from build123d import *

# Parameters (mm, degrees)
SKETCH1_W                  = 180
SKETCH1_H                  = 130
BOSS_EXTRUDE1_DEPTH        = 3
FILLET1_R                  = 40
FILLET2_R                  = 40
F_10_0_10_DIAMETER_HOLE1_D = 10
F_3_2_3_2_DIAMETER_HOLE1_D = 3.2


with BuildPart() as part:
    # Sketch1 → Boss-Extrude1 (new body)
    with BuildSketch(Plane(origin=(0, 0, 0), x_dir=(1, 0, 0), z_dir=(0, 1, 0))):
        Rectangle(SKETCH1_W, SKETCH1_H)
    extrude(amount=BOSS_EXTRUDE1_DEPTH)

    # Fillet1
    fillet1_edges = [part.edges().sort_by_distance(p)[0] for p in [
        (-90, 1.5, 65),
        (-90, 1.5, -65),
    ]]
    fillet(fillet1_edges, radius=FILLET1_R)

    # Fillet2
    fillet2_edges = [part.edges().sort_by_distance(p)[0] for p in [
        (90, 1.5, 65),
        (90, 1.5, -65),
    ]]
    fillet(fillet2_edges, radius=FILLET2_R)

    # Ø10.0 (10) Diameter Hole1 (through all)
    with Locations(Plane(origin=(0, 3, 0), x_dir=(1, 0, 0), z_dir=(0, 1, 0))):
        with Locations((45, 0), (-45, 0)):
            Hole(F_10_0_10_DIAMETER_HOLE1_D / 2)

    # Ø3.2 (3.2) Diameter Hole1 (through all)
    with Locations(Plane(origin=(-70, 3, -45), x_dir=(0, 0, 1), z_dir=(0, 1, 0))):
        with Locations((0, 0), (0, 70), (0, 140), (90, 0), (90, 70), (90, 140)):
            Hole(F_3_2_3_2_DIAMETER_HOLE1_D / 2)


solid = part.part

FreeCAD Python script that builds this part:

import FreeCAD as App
import Part
import Sketcher
from FreeCAD import Vector


def edges_at(feature, points):
    """Names of the edges that pass closest to the given points."""
    edges = feature.Shape.Edges
    near = lambda p: min(range(len(edges)), key=lambda i: edges[i].distToShape(Part.Vertex(*p))[0])
    return sorted({f"Edge{near(p) + 1}" for p in points})


def add_polygon(sketch, points):
    """Adds a closed chain of lines whose ends are joined by coincident constraints."""
    first, n = sketch.GeometryCount, len(points)
    for a, b in zip(points, points[1:] + points[:1]):
        sketch.addGeometry(Part.LineSegment(App.Vector(*a, 0), App.Vector(*b, 0)), False)
    for i in range(n):
        sketch.addConstraint(Sketcher.Constraint("Coincident", first + i, 2, first + (i + 1) % n, 1))

doc = App.newDocument("Part")
params = doc.addObject("Spreadsheet::Sheet", "Params")
for row, (alias, value) in enumerate([
    ("sketch1_width", "180 mm"),
    ("sketch1_height", "130 mm"),
    ("pad1_length", "3 mm"),
    ("fillet_radius", "40 mm"),
    ("fillet2_radius", "40 mm"),
    ("sketch2_diameter", "10 mm"),
    ("hole_diameter", "10 mm"),
    ("sketch3_diameter", "3.2 mm"),
    ("hole2_diameter", "3.2 mm"),
], start=1):
    params.set(f"A{row}", alias)
    params.set(f"B{row}", "=" + value)
    params.setAlias(f"B{row}", alias)

body = doc.addObject("PartDesign::Body", "Body")

# Sketch on XZ plane
sketch1 = body.newObject("Sketcher::SketchObject", "Sketch")
sketch1.AttachmentSupport = (doc.getObject("XZ_Plane"), [""])
sketch1.MapMode = "FlatFace"
add_polygon(sketch1, [(-90, -65), (-90, 65), (90, 65), (90, -65)])  # lines 0-3
sketch1.addConstraint(Sketcher.Constraint("Vertical", 0))
sketch1.addConstraint(Sketcher.Constraint("Horizontal", 1))
sketch1.addConstraint(Sketcher.Constraint("Vertical", 2))
sketch1.addConstraint(Sketcher.Constraint("Horizontal", 3))
sketch1.addConstraint(Sketcher.Constraint("Symmetric", 0, 2, 2, 2, -1, 1))
sketch1.addConstraint(Sketcher.Constraint("DistanceX", 1, 1, 1, 2, 180.0))
sketch1.addConstraint(Sketcher.Constraint("DistanceY", 0, 1, 0, 2, 130.0))
sketch1.setExpression("Constraints[9]", "Params.sketch1_width")
sketch1.setExpression("Constraints[10]", "Params.sketch1_height")
pad1 = body.newObject("PartDesign::Pad", "Pad")
pad1.Profile = sketch1
pad1.setExpression("Length", "Params.pad1_length")
pad1.Reversed = True
doc.recompute()

fillet = body.newObject("PartDesign::Fillet", "Fillet")
fillet.Base = (pad1, edges_at(pad1, [(-90, 1.5, 65), (-90, 1.5, -65)]))
fillet.setExpression("Radius", "Params.fillet_radius")
doc.recompute()

fillet2 = body.newObject("PartDesign::Fillet", "Fillet001")
fillet2.Base = (fillet, edges_at(fillet, [(90, 1.5, 65), (90, 1.5, -65)]))
fillet2.setExpression("Radius", "Params.fillet2_radius")

# Sketch on XZ plane
sketch2 = body.newObject("Sketcher::SketchObject", "Sketch001")
sketch2.AttachmentSupport = (doc.getObject("XZ_Plane"), [""])
sketch2.MapMode = "FlatFace"
sketch2.AttachmentOffset = App.Placement(Vector(0, 0, -3), App.Rotation())
sketch2.addGeometry(Part.Circle(Vector(45, 0, 0), Vector(0, 0, 1), 5), False)
sketch2.addGeometry(Part.Circle(Vector(-45, 0, 0), Vector(0, 0, 1), 5), False)
sketch2.addConstraint(Sketcher.Constraint("Equal", 0, 1))
sketch2.addConstraint(Sketcher.Constraint("Symmetric", 0, 3, 1, 3, -1, 1))
sketch2.addConstraint(Sketcher.Constraint("PointOnObject", 0, 3, -1))
sketch2.addConstraint(Sketcher.Constraint("Diameter", 0, 10.0))
sketch2.addConstraint(Sketcher.Constraint("DistanceX", -1, 1, 0, 3, 45.0))
sketch2.setExpression("Constraints[3]", "Params.sketch2_diameter")
doc.recompute()
hole = body.newObject("PartDesign::Hole", "Hole")
hole.Profile = sketch2
hole.ThreadType = "None"
hole.setExpression("Diameter", "Params.hole_diameter")
hole.DepthType = "ThroughAll"
hole.Reversed = True

# Sketch on XZ plane
sketch3 = body.newObject("Sketcher::SketchObject", "Sketch002")
sketch3.AttachmentSupport = (doc.getObject("XZ_Plane"), [""])
sketch3.MapMode = "FlatFace"
sketch3.AttachmentOffset = App.Placement(Vector(0, 0, -3), App.Rotation())
sketch3.addGeometry(Part.Circle(Vector(-70, -45, 0), Vector(0, 0, 1), 1.6), False)
sketch3.addGeometry(Part.Circle(Vector(0, -45, 0), Vector(0, 0, 1), 1.6), False)
sketch3.addGeometry(Part.Circle(Vector(70, -45, 0), Vector(0, 0, 1), 1.6), False)
sketch3.addGeometry(Part.Circle(Vector(-70, 45, 0), Vector(0, 0, 1), 1.6), False)
sketch3.addGeometry(Part.Circle(Vector(0, 45, 0), Vector(0, 0, 1), 1.6), False)
sketch3.addGeometry(Part.Circle(Vector(70, 45, 0), Vector(0, 0, 1), 1.6), False)
sketch3.addConstraint(Sketcher.Constraint("Equal", 0, 1))
sketch3.addConstraint(Sketcher.Constraint("Equal", 1, 2))
sketch3.addConstraint(Sketcher.Constraint("Equal", 2, 3))
sketch3.addConstraint(Sketcher.Constraint("Equal", 3, 4))
sketch3.addConstraint(Sketcher.Constraint("Equal", 4, 5))
sketch3.addConstraint(Sketcher.Constraint("Symmetric", 2, 3, 3, 3, -1, 1))
sketch3.addConstraint(Sketcher.Constraint("Symmetric", 1, 3, 4, 3, -1, 1))
sketch3.addConstraint(Sketcher.Constraint("Symmetric", 0, 3, 5, 3, -1, 1))
sketch3.addConstraint(Sketcher.Constraint("Symmetric", 0, 3, 2, 3, -2))
sketch3.addConstraint(Sketcher.Constraint("PointOnObject", 1, 3, -2))
sketch3.addConstraint(Sketcher.Constraint("Horizontal", 0, 3, 1, 3))
sketch3.addConstraint(Sketcher.Constraint("Diameter", 0, 3.2))
sketch3.addConstraint(Sketcher.Constraint("DistanceX", 0, 3, -1, 1, 70.0))
sketch3.addConstraint(Sketcher.Constraint("DistanceY", 0, 3, -1, 1, 45.0))
sketch3.setExpression("Constraints[11]", "Params.sketch3_diameter")
doc.recompute()
hole2 = body.newObject("PartDesign::Hole", "Hole001")
hole2.Profile = sketch3
hole2.ThreadType = "None"
hole2.setExpression("Diameter", "Params.hole2_diameter")
hole2.DepthType = "ThroughAll"
hole2.Reversed = True

doc.recompute()
